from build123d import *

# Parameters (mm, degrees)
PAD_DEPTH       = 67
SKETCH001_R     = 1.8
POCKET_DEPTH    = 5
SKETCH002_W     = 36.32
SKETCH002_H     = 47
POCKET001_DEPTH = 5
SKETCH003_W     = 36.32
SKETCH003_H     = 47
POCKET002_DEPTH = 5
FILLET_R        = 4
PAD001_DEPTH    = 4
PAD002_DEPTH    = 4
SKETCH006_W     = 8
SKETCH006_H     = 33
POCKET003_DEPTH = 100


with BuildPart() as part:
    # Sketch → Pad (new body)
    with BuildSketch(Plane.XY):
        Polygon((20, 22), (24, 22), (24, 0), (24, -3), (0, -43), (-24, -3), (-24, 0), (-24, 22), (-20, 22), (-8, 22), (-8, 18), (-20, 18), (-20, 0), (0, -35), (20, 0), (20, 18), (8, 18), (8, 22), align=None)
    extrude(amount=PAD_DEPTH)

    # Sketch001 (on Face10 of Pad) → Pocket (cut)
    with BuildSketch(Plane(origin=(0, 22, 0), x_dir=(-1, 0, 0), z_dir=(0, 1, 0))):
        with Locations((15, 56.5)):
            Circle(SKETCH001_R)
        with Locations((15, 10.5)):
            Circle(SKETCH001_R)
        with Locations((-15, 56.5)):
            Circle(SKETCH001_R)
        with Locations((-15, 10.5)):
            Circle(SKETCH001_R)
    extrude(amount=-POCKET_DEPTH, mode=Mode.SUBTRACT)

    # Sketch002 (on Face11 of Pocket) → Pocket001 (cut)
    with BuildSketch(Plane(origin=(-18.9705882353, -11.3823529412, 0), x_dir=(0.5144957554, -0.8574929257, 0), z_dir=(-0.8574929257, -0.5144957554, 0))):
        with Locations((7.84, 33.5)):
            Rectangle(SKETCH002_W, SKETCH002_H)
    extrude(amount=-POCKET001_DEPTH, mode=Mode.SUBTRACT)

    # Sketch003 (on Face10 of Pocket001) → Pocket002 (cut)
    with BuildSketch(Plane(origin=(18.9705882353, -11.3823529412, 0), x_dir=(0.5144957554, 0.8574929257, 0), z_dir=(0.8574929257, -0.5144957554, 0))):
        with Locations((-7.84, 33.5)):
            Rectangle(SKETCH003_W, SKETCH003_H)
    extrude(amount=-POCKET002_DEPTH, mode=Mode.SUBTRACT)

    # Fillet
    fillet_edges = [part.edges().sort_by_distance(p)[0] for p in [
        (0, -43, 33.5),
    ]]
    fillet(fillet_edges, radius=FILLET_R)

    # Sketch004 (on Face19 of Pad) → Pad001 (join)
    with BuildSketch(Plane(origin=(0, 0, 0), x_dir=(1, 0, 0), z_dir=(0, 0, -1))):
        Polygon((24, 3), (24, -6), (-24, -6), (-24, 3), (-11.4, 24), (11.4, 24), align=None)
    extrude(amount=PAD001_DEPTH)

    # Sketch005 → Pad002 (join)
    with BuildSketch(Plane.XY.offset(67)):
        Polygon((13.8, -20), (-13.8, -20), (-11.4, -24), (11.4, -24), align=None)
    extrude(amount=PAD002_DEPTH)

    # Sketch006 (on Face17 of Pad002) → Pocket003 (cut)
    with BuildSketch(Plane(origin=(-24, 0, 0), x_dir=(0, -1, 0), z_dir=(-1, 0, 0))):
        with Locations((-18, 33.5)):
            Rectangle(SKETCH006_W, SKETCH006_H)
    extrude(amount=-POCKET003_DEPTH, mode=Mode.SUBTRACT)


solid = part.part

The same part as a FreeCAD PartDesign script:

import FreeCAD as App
import Part
import Sketcher
Q = App.Units.Quantity


def edges_at(feature, points):
    """Names of the edges that pass closest to the given points."""
    edges = feature.Shape.Edges
    near = lambda p: min(range(len(edges)), key=lambda i: edges[i].distToShape(Part.Vertex(*p))[0])
    return sorted({f"Edge{near(p) + 1}" for p in points})


def add_polygon(sketch, points):
    """Adds a closed chain of lines whose ends are joined by coincident constraints."""
    first, n = sketch.GeometryCount, len(points)
    for a, b in zip(points, points[1:] + points[:1]):
        sketch.addGeometry(Part.LineSegment(App.Vector(*a, 0), App.Vector(*b, 0)), False)
    for i in range(n):
        sketch.addConstraint(Sketcher.Constraint("Coincident", first + i, 2, first + (i + 1) % n, 1))

doc = App.newDocument("Part")
params = doc.addObject("Spreadsheet::Sheet", "Params")
for row, (alias, value) in enumerate([
    ("sketch1_width", "16 mm"),
    ("sketch1_width2", "12 mm"),
    ("sketch1_height", "4 mm"),
    ("sketch1_height2", "18 mm"),
    ("sketch1_height3", "25 mm"),
    ("pad1_length", "67 mm"),
    ("sketch2_diameter", "3.6 mm"),
    ("pocket1_length", "5 mm"),
    ("sketch3_height", "47 mm"),
    ("sketch3_width", "36.32 mm"),
    ("pocket2_length", "5 mm"),
    ("sketch4_height", "47 mm"),
    ("sketch4_width", "36.32 mm"),
    ("pocket3_length", "5 mm"),
    ("fillet_radius", "4 mm"),
    ("sketch5_width", "48 mm"),
    ("sketch5_height", "9 mm"),
    ("sketch5_width2", "22.8 mm"),
    ("pad2_length", "4 mm"),
    ("sketch6_width", "27.6 mm"),
    ("sketch6_width2", "22.8 mm"),
    ("pad3_length", "4 mm"),
    ("sketch7_width", "8 mm"),
    ("sketch7_height", "33 mm"),
    ("pocket4_length", "100 mm"),
], start=1):
    params.set(f"A{row}", alias)
    params.set(f"B{row}", "=" + value)
    params.setAlias(f"B{row}", alias)

body = doc.addObject("PartDesign::Body", "Body")

sketch1 = doc.addObject("Sketcher::SketchObject", "Sketch")
body.addObject(sketch1)
sketch1.AttachmentSupport = (doc.XY_Plane, [""])
sketch1.MapMode = "FlatFace"
add_polygon(sketch1, [(24, 22), (8, 22), (8, 18), (20, 18), (20, 0), (0, -35), (-20, 0), (-20, 18), (-8, 18), (-8, 22), (-24, 22), (-24, -3), (0, -43), (24, -3)])
sketch1.addConstraint([
    Sketcher.Constraint("Horizontal", 0),
    Sketcher.Constraint("Vertical", 1),
    Sketcher.Constraint("Horizontal", 2),
    Sketcher.Constraint("Vertical", 3),
    Sketcher.Constraint("Vertical", 6),
    Sketcher.Constraint("Horizontal", 7),
    Sketcher.Constraint("Vertical", 8),
    Sketcher.Constraint("Horizontal", 9),
    Sketcher.Constraint("Vertical", 10),
    Sketcher.Constraint("Vertical", 13),
    Sketcher.Constraint("Symmetric", 3, 2, 5, 2, -1, 1),
    Sketcher.Constraint("Symmetric", 1, 2, 7, 2, -2),
    Sketcher.Constraint("Symmetric", 10, 2, 12, 2, -2),
    Sketcher.Constraint("PointOnObject", 3, 2, -1),
    Sketcher.Constraint("PointOnObject", 4, 2, -2),
    Sketcher.Constraint("PointOnObject", 11, 2, -2),
    Sketcher.Constraint("Horizontal", 0, 2, 8, 2),
    Sketcher.Constraint("DistanceX", 0, 2, 0, 1, Q("16 mm")),
    Sketcher.Constraint("DistanceX", 2, 1, 2, 2, Q("12 mm")),
    Sketcher.Constraint("DistanceY", 1, 2, 1, 1, Q("4 mm")),
    Sketcher.Constraint("DistanceY", 3, 2, 3, 1, Q("18 mm")),
    Sketcher.Constraint("DistanceY", 10, 2, 10, 1, Q("25 mm")),
    Sketcher.Constraint("DistanceX", -1, 1, 0, 2, Q("8 mm")),
    Sketcher.Constraint("DistanceY", 4, 2, -1, 1, Q("35 mm")),
    Sketcher.Constraint("DistanceY", 11, 2, -1, 1, Q("43 mm")),
])
sketch1.setExpression("Constraints[31]", "Params.sketch1_width")
sketch1.setExpression("Constraints[32]", "Params.sketch1_width2")
sketch1.setExpression("Constraints[33]", "Params.sketch1_height")
sketch1.setExpression("Constraints[34]", "Params.sketch1_height2")
sketch1.setExpression("Constraints[35]", "Params.sketch1_height3")
pad1 = doc.addObject("PartDesign::Pad", "Pad")
body.addObject(pad1)
pad1.Profile = sketch1
pad1.setExpression("Length", "Params.pad1_length")

sketch2 = doc.addObject("Sketcher::SketchObject", "Sketch001")
body.addObject(sketch2)
sketch2.AttachmentSupport = (doc.XZ_Plane, [""])
sketch2.MapMode = "FlatFace"
sketch2.AttachmentOffset = App.Placement(App.Vector(0, 0, -22), App.Rotation())
sketch2.addGeometry([
    Part.Circle(App.Vector(-15, 56.5, 0), App.Vector(0, 0, 1), 1.8),
    Part.Circle(App.Vector(-15, 10.5, 0), App.Vector(0, 0, 1), 1.8),
    Part.Circle(App.Vector(15, 56.5, 0), App.Vector(0, 0, 1), 1.8),
    Part.Circle(App.Vector(15, 10.5, 0), App.Vector(0, 0, 1), 1.8),
], False)
sketch2.addConstraint([
    Sketcher.Constraint("Equal", 0, 1),
    Sketcher.Constraint("Equal", 1, 2),
    Sketcher.Constraint("Equal", 2, 3),
    Sketcher.Constraint("Symmetric", 0, 3, 2, 3, -2),
    Sketcher.Constraint("Symmetric", 1, 3, 3, 3, -2),
    Sketcher.Constraint("Vertical", 0, 3, 1, 3),
    Sketcher.Constraint("Diameter", 0, Q("3.6 mm")),
    Sketcher.Constraint("DistanceX", 0, 3, -1, 1, Q("15 mm")),
    Sketcher.Constraint("DistanceY", 1, 3, 0, 3, Q("46 mm")),
    Sketcher.Constraint("DistanceY", -1, 1, 0, 3, Q("56.5 mm")),
])
sketch2.setExpression("Constraints[6]", "Params.sketch2_diameter")
pocket1 = doc.addObject("PartDesign::Pocket", "Pocket")
body.addObject(pocket1)
pocket1.Profile = sketch2
pocket1.setExpression("Length", "Params.pocket1_length")
pocket1.Reversed = True

sketch3 = doc.addObject("Sketcher::SketchObject", "Sketch002")
body.addObject(sketch3)
sketch3.Placement = App.Placement(App.Vector(-18.970588, -11.382353, 0), App.Rotation(App.Vector(0.514495755, -0.857492926, 0), App.Vector(0, 0, 1), App.Vector(-0.857492926, -0.514495755, 0), "ZXY"))
add_polygon(sketch3, [(-10, 57), (-10, 10), (26, 10), (26, 57)])
sketch3.addConstraint([
    Sketcher.Constraint("Vertical", 0),
    Sketcher.Constraint("Horizontal", 1),
    Sketcher.Constraint("Vertical", 2),
    Sketcher.Constraint("Horizontal", 3),
    Sketcher.Constraint("DistanceY", 0, 2, 0, 1, Q("47 mm")),
    Sketcher.Constraint("DistanceY", -1, 1, 0, 2, Q("10 mm")),
    Sketcher.Constraint("DistanceX", -1, 1, 1, 2, Q("26 mm")),
    Sketcher.Constraint("DistanceX", 1, 1, 1, 2, Q("36.32 mm")),
])
sketch3.setExpression("Constraints[8]", "Params.sketch3_height")
sketch3.setExpression("Constraints[11]", "Params.sketch3_width")
pocket2 = doc.addObject("PartDesign::Pocket", "Pocket001")
body.addObject(pocket2)
pocket2.Profile = sketch3
pocket2.setExpression("Length", "Params.pocket2_length")

sketch4 = doc.addObject("Sketcher::SketchObject", "Sketch003")
body.addObject(sketch4)
sketch4.Placement = App.Placement(App.Vector(18.970588, -11.382353, 0), App.Rotation(App.Vector(0.514495755, 0.857492926, 0), App.Vector(0, 0, 1), App.Vector(0.857492926, -0.514495755, 0), "ZXY"))
add_polygon(sketch4, [(-26, 57), (-26, 10), (10, 10), (10, 57)])
sketch4.addConstraint([
    Sketcher.Constraint("Vertical", 0),
    Sketcher.Constraint("Horizontal", 1),
    Sketcher.Constraint("Vertical", 2),
    Sketcher.Constraint("Horizontal", 3),
    Sketcher.Constraint("DistanceY", 0, 2, 0, 1, Q("47 mm")),
    Sketcher.Constraint("DistanceX", 0, 2, -1, 1, Q("26 mm")),
    Sketcher.Constraint("DistanceY", -1, 1, 0, 2, Q("10 mm")),
    Sketcher.Constraint("DistanceX", 1, 1, 1, 2, Q("36.32 mm")),
])
sketch4.setExpression("Constraints[8]", "Params.sketch4_height")
sketch4.setExpression("Constraints[11]", "Params.sketch4_width")
pocket3 = doc.addObject("PartDesign::Pocket", "Pocket002")
body.addObject(pocket3)
pocket3.Profile = sketch4
pocket3.setExpression("Length", "Params.pocket3_length")
doc.recompute()

fillet = doc.addObject("PartDesign::Fillet", "Fillet")
body.addObject(fillet)
fillet.Base = (pocket3, edges_at(pocket3, [(0, -43, 33.5)]))
fillet.setExpression("Radius", "Params.fillet_radius")

sketch5 = doc.addObject("Sketcher::SketchObject", "Sketch004")
body.addObject(sketch5)
sketch5.AttachmentSupport = (doc.XY_Plane, [""])
sketch5.MapMode = "FlatFace"
add_polygon(sketch5, [(24, 6), (24, -3), (11, -24), (-11, -24), (-24, -3), (-24, 6)])
sketch5.addConstraint([
    Sketcher.Constraint("Vertical", 0),
    Sketcher.Constraint("Horizontal", 2),
    Sketcher.Constraint("Vertical", 4),
    Sketcher.Constraint("Horizontal", 5),
    Sketcher.Constraint("Symmetric", 0, 2, 3, 2, -2),
    Sketcher.Constraint("Equal", 1, 3),
    Sketcher.Constraint("DistanceX", 5, 1, 5, 2, Q("48 mm")),
    Sketcher.Constraint("DistanceY", 0, 2, 0, 1, Q("9 mm")),
    Sketcher.Constraint("DistanceX", 2, 2, 2, 1, Q("22.8 mm")),
    Sketcher.Constraint("DistanceY", 0, 2, -1, 1, Q("3 mm")),
    Sketcher.Constraint("DistanceY", 1, 2, -1, 1, Q("24 mm")),
])
sketch5.setExpression("Constraints[12]", "Params.sketch5_width")
sketch5.setExpression("Constraints[13]", "Params.sketch5_height")
sketch5.setExpression("Constraints[14]", "Params.sketch5_width2")
pad2 = doc.addObject("PartDesign::Pad", "Pad001")
body.addObject(pad2)
pad2.Profile = sketch5
pad2.setExpression("Length", "Params.pad2_length")
pad2.Reversed = True

sketch6 = doc.addObject("Sketcher::SketchObject", "Sketch005")
body.addObject(sketch6)
sketch6.AttachmentSupport = (doc.XY_Plane, [""])
sketch6.MapMode = "FlatFace"
sketch6.AttachmentOffset = App.Placement(App.Vector(0, 0, 67), App.Rotation())
add_polygon(sketch6, [(13.8, -20), (-13.8, -20), (-11.4, -24), (11.4, -24)])
sketch6.addConstraint([
    Sketcher.Constraint("Horizontal", 0),
    Sketcher.Constraint("Horizontal", 2),
    Sketcher.Constraint("Equal", 1, 3),
    Sketcher.Constraint("DistanceX", 0, 2, 0, 1, Q("27.6 mm")),
    Sketcher.Constraint("DistanceX", 2, 1, 2, 2, Q("22.8 mm")),
    Sketcher.Constraint("DistanceY", 0, 2, -1, 1, Q("20 mm")),
    Sketcher.Constraint("DistanceY", 1, 2, -1, 1, Q("24 mm")),
    Sketcher.Constraint("DistanceX", 0, 2, -1, 1, Q("13.8 mm")),
])
sketch6.setExpression("Constraints[7]", "Params.sketch6_width")
sketch6.setExpression("Constraints[8]", "Params.sketch6_width2")
pad3 = doc.addObject("PartDesign::Pad", "Pad002")
body.addObject(pad3)
pad3.Profile = sketch6
pad3.setExpression("Length", "Params.pad3_length")

sketch7 = doc.addObject("Sketcher::SketchObject", "Sketch006")
body.addObject(sketch7)
sketch7.AttachmentSupport = (doc.YZ_Plane, [""])
sketch7.MapMode = "FlatFace"
sketch7.AttachmentOffset = App.Placement(App.Vector(0, 0, -24), App.Rotation())
add_polygon(sketch7, [(22, 50), (22, 17), (14, 17), (14, 50)])
sketch7.addConstraint([
    Sketcher.Constraint("Vertical", 0),
    Sketcher.Constraint("Horizontal", 1),
    Sketcher.Constraint("Vertical", 2),
    Sketcher.Constraint("Horizontal", 3),
    Sketcher.Constraint("DistanceX", 1, 2, 1, 1, Q("8 mm")),
    Sketcher.Constraint("DistanceY", 0, 2, 0, 1, Q("33 mm")),
    Sketcher.Constraint("DistanceX", -1, 1, 0, 2, Q("22 mm")),
    Sketcher.Constraint("DistanceY", -1, 1, 0, 2, Q("17 mm")),
])
sketch7.setExpression("Constraints[8]", "Params.sketch7_width")
sketch7.setExpression("Constraints[9]", "Params.sketch7_height")
pocket4 = doc.addObject("PartDesign::Pocket", "Pocket003")
body.addObject(pocket4)
pocket4.Profile = sketch7
pocket4.setExpression("Length", "Params.pocket4_length")
pocket4.Reversed = True

doc.recompute()
